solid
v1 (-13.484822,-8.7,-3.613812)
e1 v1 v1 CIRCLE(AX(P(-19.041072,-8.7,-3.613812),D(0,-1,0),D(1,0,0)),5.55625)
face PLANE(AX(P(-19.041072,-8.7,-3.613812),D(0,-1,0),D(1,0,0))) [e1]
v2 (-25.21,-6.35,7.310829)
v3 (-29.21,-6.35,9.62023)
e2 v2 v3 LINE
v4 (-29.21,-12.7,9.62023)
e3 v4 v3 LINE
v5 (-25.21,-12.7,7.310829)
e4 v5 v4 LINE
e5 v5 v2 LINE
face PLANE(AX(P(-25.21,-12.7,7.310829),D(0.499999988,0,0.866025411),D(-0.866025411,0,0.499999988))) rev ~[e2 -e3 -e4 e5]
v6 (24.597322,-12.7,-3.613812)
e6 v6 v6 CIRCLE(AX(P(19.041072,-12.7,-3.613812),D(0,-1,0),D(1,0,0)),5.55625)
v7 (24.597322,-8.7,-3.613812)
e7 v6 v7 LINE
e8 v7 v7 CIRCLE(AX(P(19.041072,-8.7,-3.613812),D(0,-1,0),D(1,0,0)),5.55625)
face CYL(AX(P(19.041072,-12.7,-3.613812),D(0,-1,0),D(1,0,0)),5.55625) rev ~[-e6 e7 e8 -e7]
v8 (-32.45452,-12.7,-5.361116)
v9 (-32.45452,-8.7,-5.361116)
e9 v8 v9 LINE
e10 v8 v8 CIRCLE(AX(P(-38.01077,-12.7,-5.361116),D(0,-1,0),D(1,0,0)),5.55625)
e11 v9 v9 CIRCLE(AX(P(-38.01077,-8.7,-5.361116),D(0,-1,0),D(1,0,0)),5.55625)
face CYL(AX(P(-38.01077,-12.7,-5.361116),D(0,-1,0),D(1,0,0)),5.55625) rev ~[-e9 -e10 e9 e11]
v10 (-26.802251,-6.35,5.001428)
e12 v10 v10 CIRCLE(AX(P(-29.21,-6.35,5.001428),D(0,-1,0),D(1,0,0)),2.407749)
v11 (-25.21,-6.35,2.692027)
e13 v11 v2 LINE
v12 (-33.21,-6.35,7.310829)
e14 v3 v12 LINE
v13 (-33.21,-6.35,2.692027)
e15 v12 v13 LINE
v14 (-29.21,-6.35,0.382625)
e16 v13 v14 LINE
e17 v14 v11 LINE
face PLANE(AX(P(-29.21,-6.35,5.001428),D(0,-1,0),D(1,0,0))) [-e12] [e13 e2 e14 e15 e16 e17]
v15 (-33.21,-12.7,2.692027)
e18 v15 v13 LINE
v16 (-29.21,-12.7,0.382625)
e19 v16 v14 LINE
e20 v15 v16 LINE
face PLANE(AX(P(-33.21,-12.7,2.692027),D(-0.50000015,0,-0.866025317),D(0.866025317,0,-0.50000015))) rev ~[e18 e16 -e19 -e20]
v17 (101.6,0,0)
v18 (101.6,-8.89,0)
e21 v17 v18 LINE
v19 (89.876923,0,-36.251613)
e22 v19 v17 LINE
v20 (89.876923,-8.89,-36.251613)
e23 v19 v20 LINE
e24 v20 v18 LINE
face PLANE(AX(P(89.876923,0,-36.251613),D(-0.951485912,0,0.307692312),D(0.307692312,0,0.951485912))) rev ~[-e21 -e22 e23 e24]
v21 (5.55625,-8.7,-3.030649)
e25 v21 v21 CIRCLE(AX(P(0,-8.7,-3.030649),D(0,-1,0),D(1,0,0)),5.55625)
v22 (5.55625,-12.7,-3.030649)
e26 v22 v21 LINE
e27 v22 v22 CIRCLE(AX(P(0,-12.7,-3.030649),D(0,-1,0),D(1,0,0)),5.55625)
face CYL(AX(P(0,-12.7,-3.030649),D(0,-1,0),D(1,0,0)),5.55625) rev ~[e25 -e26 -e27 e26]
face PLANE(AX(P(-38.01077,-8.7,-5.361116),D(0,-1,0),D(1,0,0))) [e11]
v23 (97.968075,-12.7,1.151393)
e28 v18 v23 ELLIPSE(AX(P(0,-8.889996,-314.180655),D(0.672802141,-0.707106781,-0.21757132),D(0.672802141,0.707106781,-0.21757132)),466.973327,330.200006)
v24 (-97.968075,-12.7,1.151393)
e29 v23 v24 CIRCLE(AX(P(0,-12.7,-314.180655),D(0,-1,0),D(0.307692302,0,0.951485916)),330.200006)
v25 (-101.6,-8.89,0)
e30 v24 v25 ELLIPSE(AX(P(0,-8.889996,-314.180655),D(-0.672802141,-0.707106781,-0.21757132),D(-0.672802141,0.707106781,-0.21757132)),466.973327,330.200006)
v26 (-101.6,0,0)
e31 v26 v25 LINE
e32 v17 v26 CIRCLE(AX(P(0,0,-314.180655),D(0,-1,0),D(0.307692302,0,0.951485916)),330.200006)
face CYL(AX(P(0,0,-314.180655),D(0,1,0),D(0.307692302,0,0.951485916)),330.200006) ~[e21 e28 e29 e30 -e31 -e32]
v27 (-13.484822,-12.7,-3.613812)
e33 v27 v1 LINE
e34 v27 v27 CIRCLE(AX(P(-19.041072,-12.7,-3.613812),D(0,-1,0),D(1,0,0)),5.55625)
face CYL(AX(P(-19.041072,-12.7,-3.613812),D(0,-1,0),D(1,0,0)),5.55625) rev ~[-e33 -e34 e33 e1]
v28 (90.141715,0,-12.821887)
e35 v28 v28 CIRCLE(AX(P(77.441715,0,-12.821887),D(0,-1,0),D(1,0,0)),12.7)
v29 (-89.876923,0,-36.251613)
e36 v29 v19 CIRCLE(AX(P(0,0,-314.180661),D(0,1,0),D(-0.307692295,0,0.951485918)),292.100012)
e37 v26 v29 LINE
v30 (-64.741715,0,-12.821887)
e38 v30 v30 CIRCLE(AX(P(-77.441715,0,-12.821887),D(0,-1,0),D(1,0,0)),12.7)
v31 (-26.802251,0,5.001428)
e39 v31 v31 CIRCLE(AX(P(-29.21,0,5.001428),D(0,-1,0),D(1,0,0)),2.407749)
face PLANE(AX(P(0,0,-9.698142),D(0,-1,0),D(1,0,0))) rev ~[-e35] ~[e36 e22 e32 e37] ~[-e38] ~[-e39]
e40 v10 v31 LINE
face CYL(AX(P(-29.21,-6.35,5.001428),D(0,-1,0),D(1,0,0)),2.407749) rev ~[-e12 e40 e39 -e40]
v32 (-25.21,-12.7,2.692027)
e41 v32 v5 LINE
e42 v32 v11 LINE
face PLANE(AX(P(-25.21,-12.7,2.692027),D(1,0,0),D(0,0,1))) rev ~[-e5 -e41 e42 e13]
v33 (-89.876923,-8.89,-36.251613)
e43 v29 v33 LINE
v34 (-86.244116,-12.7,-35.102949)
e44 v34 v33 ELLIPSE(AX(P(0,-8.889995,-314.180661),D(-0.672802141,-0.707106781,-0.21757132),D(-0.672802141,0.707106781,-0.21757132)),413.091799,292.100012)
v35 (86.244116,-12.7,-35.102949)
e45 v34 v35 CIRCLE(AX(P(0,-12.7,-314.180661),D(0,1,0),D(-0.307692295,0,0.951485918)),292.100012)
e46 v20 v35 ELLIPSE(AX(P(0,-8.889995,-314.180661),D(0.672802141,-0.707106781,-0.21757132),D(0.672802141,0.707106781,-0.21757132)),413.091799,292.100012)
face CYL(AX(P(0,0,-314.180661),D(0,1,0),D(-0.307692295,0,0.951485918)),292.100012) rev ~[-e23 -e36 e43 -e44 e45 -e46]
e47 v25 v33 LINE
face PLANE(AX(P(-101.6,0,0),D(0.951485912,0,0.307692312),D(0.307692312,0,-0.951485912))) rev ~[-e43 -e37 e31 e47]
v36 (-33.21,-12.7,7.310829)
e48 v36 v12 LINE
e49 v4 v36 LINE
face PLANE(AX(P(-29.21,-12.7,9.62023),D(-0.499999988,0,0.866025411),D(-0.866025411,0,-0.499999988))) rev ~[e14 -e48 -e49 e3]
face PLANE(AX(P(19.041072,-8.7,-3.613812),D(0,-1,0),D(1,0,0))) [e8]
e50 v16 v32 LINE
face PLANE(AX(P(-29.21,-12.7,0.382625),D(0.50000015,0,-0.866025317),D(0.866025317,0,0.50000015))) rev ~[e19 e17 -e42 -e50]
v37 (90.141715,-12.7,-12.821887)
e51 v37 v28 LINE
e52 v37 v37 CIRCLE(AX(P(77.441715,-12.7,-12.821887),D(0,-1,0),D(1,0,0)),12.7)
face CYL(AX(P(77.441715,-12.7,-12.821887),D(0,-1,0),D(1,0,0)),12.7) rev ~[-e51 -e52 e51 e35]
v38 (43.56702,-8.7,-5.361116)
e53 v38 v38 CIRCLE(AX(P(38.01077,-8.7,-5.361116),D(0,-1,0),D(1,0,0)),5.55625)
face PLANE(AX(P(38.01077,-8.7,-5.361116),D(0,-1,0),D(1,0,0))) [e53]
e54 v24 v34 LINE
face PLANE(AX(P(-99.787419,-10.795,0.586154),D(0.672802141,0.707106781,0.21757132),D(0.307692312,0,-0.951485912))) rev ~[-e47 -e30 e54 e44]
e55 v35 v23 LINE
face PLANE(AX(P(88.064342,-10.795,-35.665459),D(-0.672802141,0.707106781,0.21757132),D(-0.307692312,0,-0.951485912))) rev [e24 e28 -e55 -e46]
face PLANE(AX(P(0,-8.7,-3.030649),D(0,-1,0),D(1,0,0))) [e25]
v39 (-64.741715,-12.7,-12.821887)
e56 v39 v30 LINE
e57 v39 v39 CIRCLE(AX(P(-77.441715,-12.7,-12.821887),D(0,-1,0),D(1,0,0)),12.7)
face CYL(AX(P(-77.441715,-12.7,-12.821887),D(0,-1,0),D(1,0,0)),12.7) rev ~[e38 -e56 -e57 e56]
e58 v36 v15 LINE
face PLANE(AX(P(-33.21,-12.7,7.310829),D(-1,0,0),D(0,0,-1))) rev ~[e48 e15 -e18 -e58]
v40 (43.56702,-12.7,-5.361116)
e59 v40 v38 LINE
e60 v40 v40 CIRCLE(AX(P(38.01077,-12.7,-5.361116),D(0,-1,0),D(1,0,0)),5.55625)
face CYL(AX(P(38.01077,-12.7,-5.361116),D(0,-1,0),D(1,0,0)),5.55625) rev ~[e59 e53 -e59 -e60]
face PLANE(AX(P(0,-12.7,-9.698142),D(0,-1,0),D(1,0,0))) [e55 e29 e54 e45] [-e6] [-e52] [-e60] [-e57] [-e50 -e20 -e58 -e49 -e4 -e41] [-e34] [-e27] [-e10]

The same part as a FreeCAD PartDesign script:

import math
import FreeCAD as App
import Part
import Sketcher

V = App.Vector
Q = App.Units.Quantity


def edges_at(feature, points):
    """Names of the edges that pass closest to the given points."""
    edges = feature.Shape.Edges
    near = lambda p: min(range(len(edges)), key=lambda i: edges[i].distToShape(Part.Vertex(*p))[0])
    return sorted({f"Edge{near(p) + 1}" for p in points})

doc = App.newDocument("Part")
body = doc.addObject("PartDesign::Body", "Body")

# Sketch on XZ plane
sketch1 = body.newObject("Sketcher::SketchObject", "Sketch")
sketch1.AttachmentSupport = (doc.getObject("XZ_Plane"), [""])
sketch1.MapMode = "FlatFace"
sketch1.addGeometry(Part.LineSegment(V(89.876923, -36.251613, 0), V(101.6, 0, 0)), False)
sketch1.addGeometry(Part.ArcOfCircle(Part.Circle(V(0, -314.180655, 0), V(0, 0, 1), 330.200006), math.radians(72.079787), math.radians(107.920213)), False)
sketch1.addGeometry(Part.LineSegment(V(-101.6, 0, 0), V(-89.876923, -36.251613, 0)), False)
sketch1.addGeometry(Part.ArcOfCircle(Part.Circle(V(0, -314.180661, 0), V(0, 0, 1), 292.100012), math.radians(72.079788), math.radians(107.920212)), False)
sketch1.addConstraint(Sketcher.Constraint("Coincident", 0, 2, 1, 1))
sketch1.addConstraint(Sketcher.Constraint("Coincident", 1, 2, 2, 1))
sketch1.addConstraint(Sketcher.Constraint("Coincident", 2, 2, 3, 2))
sketch1.addConstraint(Sketcher.Constraint("Coincident", 3, 1, 0, 1))
sketch1.addConstraint(Sketcher.Constraint("Coincident", 3, 3, 1, 3))
sketch1.addConstraint(Sketcher.Constraint("Symmetric", 0, 2, 1, 2, -1, 1))
sketch1.addConstraint(Sketcher.Constraint("Symmetric", 2, 2, 3, 1, -2))
sketch1.addConstraint(Sketcher.Constraint("DistanceX", -1, 1, 0, 2, Q("4 in")))
sketch1.addConstraint(Sketcher.Constraint("Distance", 0, Q("1.5 in")))
sketch1.addConstraint(Sketcher.Constraint("Radius", 3, Q("292.100012 mm")))
sketch1.addConstraint(Sketcher.Constraint("DistanceX", 2, 2, -1, 1, Q("89.876923 mm")))
pad1 = body.newObject("PartDesign::Pad", "Pad")
pad1.Profile = sketch1
pad1.Length = Q("0.5 in")

# Sketch on XZ plane
sketch2 = body.newObject("Sketcher::SketchObject", "Sketch001")
sketch2.AttachmentSupport = (doc.getObject("XZ_Plane"), [""])
sketch2.MapMode = "FlatFace"
sketch2.AttachmentOffset = App.Placement(V(0, 0, 0.5 * 25.4), App.Rotation())
sketch2.addGeometry(Part.Circle(V(0, -3.030649, 0), V(0, 0, 1), 5.55625), False)
sketch2.addGeometry(Part.Circle(V(19.041072, -3.613812, 0), V(0, 0, 1), 5.55625), False)
sketch2.addGeometry(Part.Circle(V(38.01077, -5.361116, 0), V(0, 0, 1), 5.55625), False)
sketch2.addGeometry(Part.Circle(V(-38.01077, -5.361116, 0), V(0, 0, 1), 5.55625), False)
sketch2.addGeometry(Part.Circle(V(-19.041072, -3.613812, 0), V(0, 0, 1), 5.55625), False)
sketch2.addConstraint(Sketcher.Constraint("Equal", 0, 1))
sketch2.addConstraint(Sketcher.Constraint("Equal", 1, 2))
sketch2.addConstraint(Sketcher.Constraint("Equal", 2, 3))
sketch2.addConstraint(Sketcher.Constraint("Equal", 3, 4))
sketch2.addConstraint(Sketcher.Constraint("Symmetric", 2, 3, 3, 3, -2))
sketch2.addConstraint(Sketcher.Constraint("Symmetric", 1, 3, 4, 3, -2))
sketch2.addConstraint(Sketcher.Constraint("PointOnObject", 0, 3, -2))
sketch2.addConstraint(Sketcher.Constraint("Diameter", 0, Q("0.4375 in")))
sketch2.addConstraint(Sketcher.Constraint("DistanceX", 1, 3, 2, 3, Q("18.969698 mm")))
sketch2.addConstraint(Sketcher.Constraint("DistanceY", 0, 3, -1, 1, Q("3.030649 mm")))
sketch2.addConstraint(Sketcher.Constraint("DistanceX", -1, 1, 1, 3, Q("19.041072 mm")))
sketch2.addConstraint(Sketcher.Constraint("DistanceY", 1, 3, -1, 1, Q("3.613812 mm")))
sketch2.addConstraint(Sketcher.Constraint("DistanceY", 2, 3, -1, 1, Q("5.361116 mm")))
pocket1 = body.newObject("PartDesign::Pocket", "Pocket")
pocket1.Profile = sketch2
pocket1.Length = 4

# Sketch on XZ plane
sketch3 = body.newObject("Sketcher::SketchObject", "Sketch002")
sketch3.AttachmentSupport = (doc.getObject("XZ_Plane"), [""])
sketch3.MapMode = "FlatFace"
sketch3.AttachmentOffset = App.Placement(V(0, 0, 0.5 * 25.4), App.Rotation())
sketch3.addGeometry(Part.Circle(V(77.441715, -12.821887, 0), V(0, 0, 1), 12.7), False)
sketch3.addGeometry(Part.Circle(V(-77.441715, -12.821887, 0), V(0, 0, 1), 12.7), False)
sketch3.addConstraint(Sketcher.Constraint("Equal", 0, 1))
sketch3.addConstraint(Sketcher.Constraint("Symmetric", 0, 3, 1, 3, -2))
sketch3.addConstraint(Sketcher.Constraint("Diameter", 0, Q("1 in")))
sketch3.addConstraint(Sketcher.Constraint("DistanceX", 1, 3, 0, 3, Q("154.88343 mm")))
sketch3.addConstraint(Sketcher.Constraint("DistanceY", 0, 3, -1, 1, Q("12.821887 mm")))
pocket2 = body.newObject("PartDesign::Pocket", "Pocket001")
pocket2.Profile = sketch3
pocket2.Type = "ThroughAll"
doc.recompute()

chamfer = body.newObject("PartDesign::Chamfer", "Chamfer")
chamfer.Base = (pocket2, edges_at(pocket2, [(-95.738, -12.7, -18.126), (95.738, -12.7, -18.126)]))
chamfer.Size = Q("0.15 in")

# Sketch on XZ plane
sketch4 = body.newObject("Sketcher::SketchObject", "Sketch003")
sketch4.AttachmentSupport = (doc.getObject("XZ_Plane"), [""])
sketch4.MapMode = "FlatFace"
sketch4.AttachmentOffset = App.Placement(V(0, 0, 0.5 * 25.4), App.Rotation())
sketch4.addGeometry(Part.LineSegment(V(-29.21, 0.382625, 0), V(-25.21, 2.692027, 0)), False)
sketch4.addGeometry(Part.LineSegment(V(-25.21, 2.692027, 0), V(-25.21, 7.310829, 0)), False)
sketch4.addGeometry(Part.LineSegment(V(-25.21, 7.310829, 0), V(-29.21, 9.62023, 0)), False)
sketch4.addGeometry(Part.LineSegment(V(-29.21, 9.62023, 0), V(-33.21, 7.310829, 0)), False)
sketch4.addGeometry(Part.LineSegment(V(-33.21, 7.310829, 0), V(-33.21, 2.692027, 0)), False)
sketch4.addGeometry(Part.LineSegment(V(-33.21, 2.692027, 0), V(-29.21, 0.382625, 0)), False)
sketch4.addConstraint(Sketcher.Constraint("Coincident", 0, 2, 1, 1))
sketch4.addConstraint(Sketcher.Constraint("Coincident", 1, 2, 2, 1))
sketch4.addConstraint(Sketcher.Constraint("Coincident", 2, 2, 3, 1))
sketch4.addConstraint(Sketcher.Constraint("Coincident", 3, 2, 4, 1))
sketch4.addConstraint(Sketcher.Constraint("Coincident", 4, 2, 5, 1))
sketch4.addConstraint(Sketcher.Constraint("Coincident", 5, 2, 0, 1))
sketch4.addConstraint(Sketcher.Constraint("Vertical", 1))
sketch4.addConstraint(Sketcher.Constraint("Vertical", 4))
sketch4.addConstraint(Sketcher.Constraint("Parallel", 0, 3))
sketch4.addConstraint(Sketcher.Constraint("Parallel", 2, 5))
sketch4.addConstraint(Sketcher.Constraint("Horizontal", 1, 2, 3, 2))
sketch4.addConstraint(Sketcher.Constraint("Horizontal", 0, 2, 4, 2))
sketch4.addConstraint(Sketcher.Constraint("Vertical", 2, 2, 5, 2))
sketch4.addConstraint(Sketcher.Constraint("Angle", 0, Q("30.00001 deg")))
sketch4.addConstraint(Sketcher.Constraint("DistanceX", 2, 2, -1, 1, Q("1.15 in")))
sketch4.addConstraint(Sketcher.Constraint("DistanceX", 0, 2, -1, 1, Q("25.21 mm")))
sketch4.addConstraint(Sketcher.Constraint("DistanceY", 1, 1, 1, 2, Q("4.618802 mm")))
sketch4.addConstraint(Sketcher.Constraint("DistanceY", -1, 1, 1, 2, Q("7.310829 mm")))
pocket3 = body.newObject("PartDesign::Pocket", "Pocket002")
pocket3.Profile = sketch4
pocket3.Length = Q("0.25 in")

# Sketch on XZ plane
sketch5 = body.newObject("Sketcher::SketchObject", "Sketch004")
sketch5.AttachmentSupport = (doc.getObject("XZ_Plane"), [""])
sketch5.MapMode = "FlatFace"
sketch5.AttachmentOffset = App.Placement(V(0, 0, 0.25 * 25.4), App.Rotation())
sketch5.addGeometry(Part.Circle(V(-29.21, 5.001428, 0), V(0, 0, 1), 2.407749), False)
sketch5.addConstraint(Sketcher.Constraint("DistanceX", 0, 3, -1, 1, Q("1.15 in")))
sketch5.addConstraint(Sketcher.Constraint("Diameter", 0, Q("4.815498 mm")))
sketch5.addConstraint(Sketcher.Constraint("DistanceY", -1, 1, 0, 3, Q("5.001428 mm")))
pocket4 = body.newObject("PartDesign::Pocket", "Pocket003")
pocket4.Profile = sketch5
pocket4.Type = "ThroughAll"

doc.recompute()
